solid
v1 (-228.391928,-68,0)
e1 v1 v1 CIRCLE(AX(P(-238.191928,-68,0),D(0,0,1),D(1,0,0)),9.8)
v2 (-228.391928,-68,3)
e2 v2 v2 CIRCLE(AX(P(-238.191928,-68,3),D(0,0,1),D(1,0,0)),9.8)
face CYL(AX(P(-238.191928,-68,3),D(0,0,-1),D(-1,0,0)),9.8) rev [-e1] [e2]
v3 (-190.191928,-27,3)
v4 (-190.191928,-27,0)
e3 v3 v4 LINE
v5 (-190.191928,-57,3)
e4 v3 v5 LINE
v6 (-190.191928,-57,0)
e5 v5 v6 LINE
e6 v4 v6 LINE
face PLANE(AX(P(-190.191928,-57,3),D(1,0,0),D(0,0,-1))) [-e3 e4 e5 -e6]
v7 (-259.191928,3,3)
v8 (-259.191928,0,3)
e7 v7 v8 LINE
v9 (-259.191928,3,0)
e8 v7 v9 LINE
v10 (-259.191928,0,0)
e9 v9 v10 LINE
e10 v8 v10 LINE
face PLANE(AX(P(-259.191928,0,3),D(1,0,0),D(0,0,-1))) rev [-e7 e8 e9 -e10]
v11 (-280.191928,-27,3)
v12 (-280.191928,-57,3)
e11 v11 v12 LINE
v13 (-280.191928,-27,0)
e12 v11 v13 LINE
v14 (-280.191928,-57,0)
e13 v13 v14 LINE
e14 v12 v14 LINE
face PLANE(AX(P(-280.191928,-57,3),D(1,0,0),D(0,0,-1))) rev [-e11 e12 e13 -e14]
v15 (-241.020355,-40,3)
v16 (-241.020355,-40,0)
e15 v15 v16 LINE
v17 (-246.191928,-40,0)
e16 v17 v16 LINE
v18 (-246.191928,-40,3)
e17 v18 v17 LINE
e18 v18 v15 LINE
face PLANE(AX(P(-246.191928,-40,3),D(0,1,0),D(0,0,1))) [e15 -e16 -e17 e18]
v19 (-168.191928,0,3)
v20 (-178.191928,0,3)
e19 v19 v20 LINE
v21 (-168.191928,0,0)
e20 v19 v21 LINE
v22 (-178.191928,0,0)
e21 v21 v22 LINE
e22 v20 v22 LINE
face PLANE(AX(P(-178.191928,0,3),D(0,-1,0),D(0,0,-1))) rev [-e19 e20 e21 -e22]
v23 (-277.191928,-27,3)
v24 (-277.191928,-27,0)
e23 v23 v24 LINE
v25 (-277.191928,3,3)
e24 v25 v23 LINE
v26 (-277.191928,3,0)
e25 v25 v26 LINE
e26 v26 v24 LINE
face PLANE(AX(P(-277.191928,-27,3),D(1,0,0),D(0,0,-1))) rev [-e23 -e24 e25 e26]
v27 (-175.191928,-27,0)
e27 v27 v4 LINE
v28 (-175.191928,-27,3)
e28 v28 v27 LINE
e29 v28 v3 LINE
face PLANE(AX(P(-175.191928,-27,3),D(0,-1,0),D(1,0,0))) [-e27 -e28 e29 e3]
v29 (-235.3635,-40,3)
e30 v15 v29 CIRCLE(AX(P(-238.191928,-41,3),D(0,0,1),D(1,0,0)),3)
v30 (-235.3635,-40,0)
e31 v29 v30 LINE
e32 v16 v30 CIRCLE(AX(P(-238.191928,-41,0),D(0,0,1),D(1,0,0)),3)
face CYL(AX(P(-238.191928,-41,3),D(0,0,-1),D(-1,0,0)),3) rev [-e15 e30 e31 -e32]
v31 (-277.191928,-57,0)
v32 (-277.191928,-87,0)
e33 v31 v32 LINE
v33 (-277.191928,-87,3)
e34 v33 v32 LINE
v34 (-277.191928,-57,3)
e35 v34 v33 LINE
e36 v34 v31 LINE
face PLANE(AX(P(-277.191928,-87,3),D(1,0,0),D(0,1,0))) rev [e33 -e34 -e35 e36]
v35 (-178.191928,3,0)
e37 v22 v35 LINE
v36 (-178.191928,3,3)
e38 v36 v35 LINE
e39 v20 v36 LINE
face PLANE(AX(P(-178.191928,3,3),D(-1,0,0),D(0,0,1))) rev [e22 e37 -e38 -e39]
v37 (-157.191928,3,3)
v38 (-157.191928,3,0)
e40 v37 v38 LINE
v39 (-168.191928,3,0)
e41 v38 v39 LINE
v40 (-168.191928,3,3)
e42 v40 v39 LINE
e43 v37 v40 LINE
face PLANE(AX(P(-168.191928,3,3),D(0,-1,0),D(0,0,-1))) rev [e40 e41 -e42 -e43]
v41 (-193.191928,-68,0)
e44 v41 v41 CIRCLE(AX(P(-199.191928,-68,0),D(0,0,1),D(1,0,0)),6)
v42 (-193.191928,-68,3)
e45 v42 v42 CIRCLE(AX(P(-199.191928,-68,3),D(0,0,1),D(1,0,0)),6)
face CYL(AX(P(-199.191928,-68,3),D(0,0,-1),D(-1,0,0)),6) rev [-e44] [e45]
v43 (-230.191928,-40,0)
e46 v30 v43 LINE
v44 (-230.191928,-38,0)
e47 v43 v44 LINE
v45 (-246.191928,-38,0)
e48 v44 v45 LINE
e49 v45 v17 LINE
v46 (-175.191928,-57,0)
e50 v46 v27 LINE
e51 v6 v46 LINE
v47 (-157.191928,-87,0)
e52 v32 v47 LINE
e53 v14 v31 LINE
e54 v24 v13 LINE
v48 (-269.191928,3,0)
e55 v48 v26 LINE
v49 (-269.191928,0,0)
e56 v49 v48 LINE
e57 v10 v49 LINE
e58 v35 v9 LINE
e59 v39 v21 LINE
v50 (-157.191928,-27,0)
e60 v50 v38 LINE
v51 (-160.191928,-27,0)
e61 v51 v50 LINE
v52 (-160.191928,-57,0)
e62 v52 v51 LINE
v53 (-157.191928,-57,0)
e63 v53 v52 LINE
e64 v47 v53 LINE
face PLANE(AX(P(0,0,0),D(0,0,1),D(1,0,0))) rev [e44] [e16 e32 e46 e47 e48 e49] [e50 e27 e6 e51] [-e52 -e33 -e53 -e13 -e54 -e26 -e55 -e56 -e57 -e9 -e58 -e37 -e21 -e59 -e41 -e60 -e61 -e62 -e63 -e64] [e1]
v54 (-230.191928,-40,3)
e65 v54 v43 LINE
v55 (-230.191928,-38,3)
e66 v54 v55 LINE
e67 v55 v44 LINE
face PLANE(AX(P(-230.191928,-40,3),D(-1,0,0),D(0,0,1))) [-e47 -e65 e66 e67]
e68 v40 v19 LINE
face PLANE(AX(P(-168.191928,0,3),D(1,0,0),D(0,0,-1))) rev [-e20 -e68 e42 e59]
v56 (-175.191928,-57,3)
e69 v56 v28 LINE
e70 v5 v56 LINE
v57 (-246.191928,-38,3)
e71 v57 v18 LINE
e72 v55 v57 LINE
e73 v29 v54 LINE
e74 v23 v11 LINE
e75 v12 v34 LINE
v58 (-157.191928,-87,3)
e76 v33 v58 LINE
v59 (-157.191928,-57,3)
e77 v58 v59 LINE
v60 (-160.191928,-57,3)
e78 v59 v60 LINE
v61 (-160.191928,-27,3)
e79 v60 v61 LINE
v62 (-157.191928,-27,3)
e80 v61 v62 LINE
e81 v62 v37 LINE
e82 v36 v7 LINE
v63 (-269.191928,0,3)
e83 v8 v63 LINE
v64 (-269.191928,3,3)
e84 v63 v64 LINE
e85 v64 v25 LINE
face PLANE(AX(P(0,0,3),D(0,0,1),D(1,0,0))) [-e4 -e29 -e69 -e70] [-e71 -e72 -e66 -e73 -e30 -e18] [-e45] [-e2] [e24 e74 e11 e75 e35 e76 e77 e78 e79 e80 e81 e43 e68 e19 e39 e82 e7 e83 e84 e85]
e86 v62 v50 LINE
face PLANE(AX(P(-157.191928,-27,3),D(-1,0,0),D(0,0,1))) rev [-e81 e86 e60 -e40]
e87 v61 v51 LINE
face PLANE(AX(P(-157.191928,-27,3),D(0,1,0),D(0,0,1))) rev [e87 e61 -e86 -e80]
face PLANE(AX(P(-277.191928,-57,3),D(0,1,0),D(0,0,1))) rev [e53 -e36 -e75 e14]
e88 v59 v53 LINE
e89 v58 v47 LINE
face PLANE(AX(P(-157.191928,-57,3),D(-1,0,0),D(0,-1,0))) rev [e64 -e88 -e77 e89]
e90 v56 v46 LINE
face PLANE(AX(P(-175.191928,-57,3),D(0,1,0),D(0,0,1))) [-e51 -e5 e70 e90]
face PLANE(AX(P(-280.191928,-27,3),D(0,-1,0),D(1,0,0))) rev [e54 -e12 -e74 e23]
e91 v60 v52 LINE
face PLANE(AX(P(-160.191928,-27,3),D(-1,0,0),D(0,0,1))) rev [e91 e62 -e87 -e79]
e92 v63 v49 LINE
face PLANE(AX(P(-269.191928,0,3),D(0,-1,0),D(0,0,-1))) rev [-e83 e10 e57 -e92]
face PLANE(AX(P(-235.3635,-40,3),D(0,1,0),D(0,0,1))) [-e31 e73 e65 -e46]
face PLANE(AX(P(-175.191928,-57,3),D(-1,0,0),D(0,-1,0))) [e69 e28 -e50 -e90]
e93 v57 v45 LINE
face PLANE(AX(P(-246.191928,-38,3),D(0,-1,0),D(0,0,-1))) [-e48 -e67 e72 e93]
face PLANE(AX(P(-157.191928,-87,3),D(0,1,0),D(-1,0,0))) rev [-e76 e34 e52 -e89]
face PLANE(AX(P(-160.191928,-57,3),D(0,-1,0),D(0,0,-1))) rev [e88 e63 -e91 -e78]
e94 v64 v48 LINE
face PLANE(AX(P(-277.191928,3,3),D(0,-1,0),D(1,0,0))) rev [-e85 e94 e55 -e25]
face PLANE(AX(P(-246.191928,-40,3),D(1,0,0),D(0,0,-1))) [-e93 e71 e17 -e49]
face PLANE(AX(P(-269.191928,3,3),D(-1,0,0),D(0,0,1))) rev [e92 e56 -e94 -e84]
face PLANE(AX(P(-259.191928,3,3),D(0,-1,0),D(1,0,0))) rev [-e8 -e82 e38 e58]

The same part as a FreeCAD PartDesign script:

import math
import FreeCAD as App
import Part
import Sketcher


def add_polygon(sketch, points):
    """Adds a closed chain of lines whose ends are joined by coincident constraints."""
    first, n = sketch.GeometryCount, len(points)
    for a, b in zip(points, points[1:] + points[:1]):
        sketch.addGeometry(Part.LineSegment(App.Vector(*a, 0), App.Vector(*b, 0)), False)
    for i in range(n):
        sketch.addConstraint(Sketcher.Constraint("Coincident", first + i, 2, first + (i + 1) % n, 1))

doc = App.newDocument("Part")
params = doc.addObject("Spreadsheet::Sheet", "Params")
for row, (alias, value) in enumerate([
    ("sketch1_diameter", "12 mm"),
    ("sketch1_radius", "3 mm"),
    ("sketch1_diameter2", "19.6 mm"),
    ("sketch1_width", "3 mm"),
    ("sketch1_width2", "11 mm"),
    ("pad1_length", "3 mm"),
], start=1):
    params.set(f"A{row}", alias)
    params.set(f"B{row}", "=" + value)
    params.setAlias(f"B{row}", alias)

body = doc.addObject("PartDesign::Body", "Body")

# Sketch on XY plane
sketch1 = body.newObject("Sketcher::SketchObject", "Sketch")
sketch1.AttachmentSupport = (doc.getObject("XY_Plane"), [""])
sketch1.MapMode = "FlatFace"
add_polygon(sketch1, [(-160.2, -57), (-160.2, -27), (-157.2, -27), (-157.2, 3), (-168.2, 3), (-168.2, 0), (-178.2, 0), (-178.2, 3), (-259.2, 3), (-259.2, 0), (-269.2, 0), (-269.2, 3), (-277.2, 3), (-277.2, -27), (-280.2, -27), (-280.2, -57), (-277.2, -57), (-277.2, -87), (-157.2, -87), (-157.2, -57)])  # lines 0-19
sketch1.addGeometry(Part.Circle(App.Vector(-199.2, -68, 0), App.Vector(0, 0, 1), 6), False)  # 20
sketch1.addGeometry(Part.Circle(App.Vector(-238.2, -68, 0), App.Vector(0, 0, 1), 9.8), False)  # 21
add_polygon(sketch1, [(-190.2, -57), (-190.2, -27), (-175.2, -27), (-175.2, -57)])  # lines 22-25
sketch1.addGeometry(Part.ArcOfCircle(Part.Circle(App.Vector(-238.2, -41, 0), App.Vector(0, 0, 1), 3), math.radians(161), math.radians(379)), False)  # 26
sketch1.addGeometry(Part.LineSegment(App.Vector(-241, -40, 0), App.Vector(-246.2, -40, 0)), False)  # 27
sketch1.addGeometry(Part.LineSegment(App.Vector(-246.2, -40, 0), App.Vector(-246.2, -38, 0)), False)  # 28
sketch1.addGeometry(Part.LineSegment(App.Vector(-246.2, -38, 0), App.Vector(-230.2, -38, 0)), False)  # 29
sketch1.addGeometry(Part.LineSegment(App.Vector(-230.2, -38, 0), App.Vector(-230.2, -40, 0)), False)  # 30
sketch1.addGeometry(Part.LineSegment(App.Vector(-230.2, -40, 0), App.Vector(-235.4, -40, 0)), False)  # 31
sketch1.addConstraint(Sketcher.Constraint("Coincident", 26, 1, 27, 1))
sketch1.addConstraint(Sketcher.Constraint("Coincident", 27, 2, 28, 1))
sketch1.addConstraint(Sketcher.Constraint("Coincident", 28, 2, 29, 1))
sketch1.addConstraint(Sketcher.Constraint("Coincident", 29, 2, 30, 1))
sketch1.addConstraint(Sketcher.Constraint("Coincident", 30, 2, 31, 1))
sketch1.addConstraint(Sketcher.Constraint("Coincident", 31, 2, 26, 2))
sketch1.addConstraint(Sketcher.Constraint("Vertical", 0))
sketch1.addConstraint(Sketcher.Constraint("Horizontal", 1))
sketch1.addConstraint(Sketcher.Constraint("Vertical", 2))
sketch1.addConstraint(Sketcher.Constraint("Horizontal", 3))
sketch1.addConstraint(Sketcher.Constraint("Vertical", 4))
sketch1.addConstraint(Sketcher.Constraint("Horizontal", 5))
sketch1.addConstraint(Sketcher.Constraint("Vertical", 6))
sketch1.addConstraint(Sketcher.Constraint("Horizontal", 7))
sketch1.addConstraint(Sketcher.Constraint("Vertical", 8))
sketch1.addConstraint(Sketcher.Constraint("Horizontal", 9))
sketch1.addConstraint(Sketcher.Constraint("Vertical", 10))
sketch1.addConstraint(Sketcher.Constraint("Horizontal", 11))
sketch1.addConstraint(Sketcher.Constraint("Vertical", 12))
sketch1.addConstraint(Sketcher.Constraint("Horizontal", 13))
sketch1.addConstraint(Sketcher.Constraint("Vertical", 14))
sketch1.addConstraint(Sketcher.Constraint("Horizontal", 15))
sketch1.addConstraint(Sketcher.Constraint("Vertical", 16))
sketch1.addConstraint(Sketcher.Constraint("Horizontal", 17))
sketch1.addConstraint(Sketcher.Constraint("Vertical", 18))
sketch1.addConstraint(Sketcher.Constraint("Horizontal", 19))
sketch1.addConstraint(Sketcher.Constraint("Vertical", 22))
sketch1.addConstraint(Sketcher.Constraint("Horizontal", 23))
sketch1.addConstraint(Sketcher.Constraint("Vertical", 24))
sketch1.addConstraint(Sketcher.Constraint("Horizontal", 25))
sketch1.addConstraint(Sketcher.Constraint("Horizontal", 27))
sketch1.addConstraint(Sketcher.Constraint("Vertical", 28))
sketch1.addConstraint(Sketcher.Constraint("Horizontal", 29))
sketch1.addConstraint(Sketcher.Constraint("Vertical", 30))
sketch1.addConstraint(Sketcher.Constraint("Horizontal", 31))
sketch1.addConstraint(Sketcher.Constraint("PointOnObject", 4, 2, -1))
sketch1.addConstraint(Sketcher.Constraint("PointOnObject", 8, 2, -1))
sketch1.addConstraint(Sketcher.Constraint("Horizontal", 20, 3, 21, 3))
sketch1.addConstraint(Sketcher.Constraint("Horizontal", 3, 2, 6, 2))
sketch1.addConstraint(Sketcher.Constraint("Horizontal", 7, 2, 10, 2))
sketch1.addConstraint(Sketcher.Constraint("Horizontal", 1, 2, 12, 2))
sketch1.addConstraint(Sketcher.Constraint("Horizontal", 15, 2, 18, 2))
sketch1.addConstraint(Sketcher.Constraint("Horizontal", 13, 2, 22, 2))
sketch1.addConstraint(Sketcher.Constraint("Horizontal", 19, 2, 24, 2))
sketch1.addConstraint(Sketcher.Constraint("Horizontal", 27, 2, 30, 2))
sketch1.addConstraint(Sketcher.Constraint("Vertical", 21, 3, 26, 3))
sketch1.addConstraint(Sketcher.Constraint("Vertical", 12, 2, 15, 2))
sketch1.addConstraint(Sketcher.Constraint("Vertical", 2, 2, 17, 2))
sketch1.addConstraint(Sketcher.Constraint("Equal", 5, 9))
sketch1.addConstraint(Sketcher.Constraint("Equal", 1, 13))
sketch1.addConstraint(Sketcher.Constraint("Equal", 27, 31))
sketch1.addConstraint(Sketcher.Constraint("Equal", 0, 2))
sketch1.addConstraint(Sketcher.Constraint("Equal", 19, 4))
sketch1.addConstraint(Sketcher.Constraint("Equal", 14, 16))
sketch1.addConstraint(Sketcher.Constraint("Diameter", 20, 12.0))
sketch1.addConstraint(Sketcher.Constraint("Radius", 26, 3.0))
sketch1.addConstraint(Sketcher.Constraint("Diameter", 21, 19.6))
sketch1.addConstraint(Sketcher.Constraint("DistanceX", 1, 1, 1, 2, 3.0))
sketch1.addConstraint(Sketcher.Constraint("DistanceX", 3, 2, 3, 1, 11.0))
sketch1.addConstraint(Sketcher.Constraint("DistanceX", 5, 2, 5, 1, 10.0))
sketch1.addConstraint(Sketcher.Constraint("DistanceX", 7, 2, 7, 1, 81.0))
sketch1.addConstraint(Sketcher.Constraint("DistanceX", 11, 2, 11, 1, 8.0))
sketch1.addConstraint(Sketcher.Constraint("DistanceX", 23, 1, 23, 2, 15.0))
sketch1.addConstraint(Sketcher.Constraint("DistanceX", 29, 1, 29, 2, 16.0))
sketch1.addConstraint(Sketcher.Constraint("DistanceY", 0, 1, 0, 2, 30.0))
sketch1.addConstraint(Sketcher.Constraint("DistanceY", 28, 1, 28, 2, 2.0))
sketch1.addConstraint(Sketcher.Constraint("DistanceY", 20, 3, -1, 1, 68.0))
sketch1.addConstraint(Sketcher.Constraint("DistanceY", 26, 3, -1, 1, 41.0))
sketch1.addConstraint(Sketcher.Constraint("DistanceY", 26, 1, -1, 1, 40.0))
sketch1.addConstraint(Sketcher.Constraint("DistanceX", 21, 3, 20, 3, 39.0))
sketch1.addConstraint(Sketcher.Constraint("DistanceX", 20, 3, 0, 2, 39.0))
sketch1.addConstraint(Sketcher.Constraint("DistanceX", 22, 2, 5, 2, 12.0))
sketch1.addConstraint(Sketcher.Constraint("DistanceX", 31, 2, -1, 1, 235.3635))
sketch1.setExpression("Constraints[78]", "Params.sketch1_diameter")
sketch1.setExpression("Constraints[79]", "Params.sketch1_radius")
sketch1.setExpression("Constraints[80]", "Params.sketch1_diameter2")
sketch1.setExpression("Constraints[81]", "Params.sketch1_width")
sketch1.setExpression("Constraints[82]", "Params.sketch1_width2")
pad1 = body.newObject("PartDesign::Pad", "Pad")
pad1.Profile = sketch1
pad1.setExpression("Length", "Params.pad1_length")

doc.recompute()
